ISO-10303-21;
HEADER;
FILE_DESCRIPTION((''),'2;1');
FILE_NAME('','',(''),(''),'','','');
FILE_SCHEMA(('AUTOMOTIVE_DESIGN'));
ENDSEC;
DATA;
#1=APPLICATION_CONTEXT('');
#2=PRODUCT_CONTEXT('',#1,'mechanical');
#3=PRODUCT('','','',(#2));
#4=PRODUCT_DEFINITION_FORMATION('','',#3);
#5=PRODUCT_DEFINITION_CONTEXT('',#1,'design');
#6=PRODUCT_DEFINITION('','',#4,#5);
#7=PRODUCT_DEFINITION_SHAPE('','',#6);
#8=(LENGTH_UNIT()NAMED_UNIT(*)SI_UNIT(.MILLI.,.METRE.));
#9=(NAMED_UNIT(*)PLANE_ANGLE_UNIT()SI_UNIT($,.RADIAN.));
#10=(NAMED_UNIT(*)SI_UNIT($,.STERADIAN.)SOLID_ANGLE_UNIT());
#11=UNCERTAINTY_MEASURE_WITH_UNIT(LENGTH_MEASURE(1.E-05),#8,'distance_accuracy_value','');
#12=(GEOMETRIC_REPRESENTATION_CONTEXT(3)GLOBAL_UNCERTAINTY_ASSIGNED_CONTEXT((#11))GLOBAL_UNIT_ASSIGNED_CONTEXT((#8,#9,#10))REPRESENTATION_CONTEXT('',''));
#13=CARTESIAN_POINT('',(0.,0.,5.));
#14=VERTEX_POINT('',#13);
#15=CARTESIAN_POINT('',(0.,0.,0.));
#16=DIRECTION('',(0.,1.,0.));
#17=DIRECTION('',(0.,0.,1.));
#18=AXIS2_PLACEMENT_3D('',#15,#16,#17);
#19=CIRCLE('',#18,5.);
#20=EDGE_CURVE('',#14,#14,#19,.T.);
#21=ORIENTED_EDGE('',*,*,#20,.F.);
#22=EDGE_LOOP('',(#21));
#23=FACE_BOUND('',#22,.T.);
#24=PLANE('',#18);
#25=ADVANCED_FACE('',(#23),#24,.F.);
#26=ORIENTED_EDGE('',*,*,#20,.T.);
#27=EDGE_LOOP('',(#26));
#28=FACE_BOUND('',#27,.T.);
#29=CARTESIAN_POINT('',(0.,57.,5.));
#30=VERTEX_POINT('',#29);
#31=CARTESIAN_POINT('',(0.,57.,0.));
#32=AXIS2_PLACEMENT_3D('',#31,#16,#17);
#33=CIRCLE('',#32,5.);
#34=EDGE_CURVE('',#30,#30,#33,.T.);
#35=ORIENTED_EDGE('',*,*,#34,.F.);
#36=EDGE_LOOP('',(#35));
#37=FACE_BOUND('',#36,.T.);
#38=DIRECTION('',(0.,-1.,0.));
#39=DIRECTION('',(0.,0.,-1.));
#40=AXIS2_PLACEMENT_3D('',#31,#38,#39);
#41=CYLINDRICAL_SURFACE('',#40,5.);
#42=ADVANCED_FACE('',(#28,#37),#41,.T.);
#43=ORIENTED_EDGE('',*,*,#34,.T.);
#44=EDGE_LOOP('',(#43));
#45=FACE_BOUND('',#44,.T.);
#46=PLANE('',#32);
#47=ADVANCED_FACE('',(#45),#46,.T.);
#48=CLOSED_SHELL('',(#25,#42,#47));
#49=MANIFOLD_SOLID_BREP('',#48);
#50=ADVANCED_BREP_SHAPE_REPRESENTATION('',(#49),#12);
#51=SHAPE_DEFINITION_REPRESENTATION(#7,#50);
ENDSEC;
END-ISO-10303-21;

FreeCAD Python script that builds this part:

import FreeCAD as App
import Part
import Sketcher

doc = App.newDocument("Part")
params = doc.addObject("Spreadsheet::Sheet", "Params")
for row, (alias, value) in enumerate([
    ("sketch1_diameter", "10 mm"),
    ("pad1_length", "57 mm"),
], start=1):
    params.set(f"A{row}", alias)
    params.set(f"B{row}", "=" + value)
    params.setAlias(f"B{row}", alias)

body = doc.addObject("PartDesign::Body", "Body")

# Sketch on XZ plane
sketch1 = body.newObject("Sketcher::SketchObject", "Sketch")
sketch1.AttachmentSupport = (doc.getObject("XZ_Plane"), [""])
sketch1.MapMode = "FlatFace"
sketch1.addGeometry(Part.Circle(App.Vector(0, 0, 0), App.Vector(0, 0, 1), 5), False)
sketch1.addConstraint([
    Sketcher.Constraint("Coincident", 0, 3, -1, 1),
    Sketcher.Constraint("Diameter", 0, 10.0),
])
sketch1.setExpression("Constraints[1]", "Params.sketch1_diameter")
pad1 = body.newObject("PartDesign::Pad", "Pad")
pad1.Profile = sketch1
pad1.setExpression("Length", "Params.pad1_length")
pad1.Reversed = True

doc.recompute()
